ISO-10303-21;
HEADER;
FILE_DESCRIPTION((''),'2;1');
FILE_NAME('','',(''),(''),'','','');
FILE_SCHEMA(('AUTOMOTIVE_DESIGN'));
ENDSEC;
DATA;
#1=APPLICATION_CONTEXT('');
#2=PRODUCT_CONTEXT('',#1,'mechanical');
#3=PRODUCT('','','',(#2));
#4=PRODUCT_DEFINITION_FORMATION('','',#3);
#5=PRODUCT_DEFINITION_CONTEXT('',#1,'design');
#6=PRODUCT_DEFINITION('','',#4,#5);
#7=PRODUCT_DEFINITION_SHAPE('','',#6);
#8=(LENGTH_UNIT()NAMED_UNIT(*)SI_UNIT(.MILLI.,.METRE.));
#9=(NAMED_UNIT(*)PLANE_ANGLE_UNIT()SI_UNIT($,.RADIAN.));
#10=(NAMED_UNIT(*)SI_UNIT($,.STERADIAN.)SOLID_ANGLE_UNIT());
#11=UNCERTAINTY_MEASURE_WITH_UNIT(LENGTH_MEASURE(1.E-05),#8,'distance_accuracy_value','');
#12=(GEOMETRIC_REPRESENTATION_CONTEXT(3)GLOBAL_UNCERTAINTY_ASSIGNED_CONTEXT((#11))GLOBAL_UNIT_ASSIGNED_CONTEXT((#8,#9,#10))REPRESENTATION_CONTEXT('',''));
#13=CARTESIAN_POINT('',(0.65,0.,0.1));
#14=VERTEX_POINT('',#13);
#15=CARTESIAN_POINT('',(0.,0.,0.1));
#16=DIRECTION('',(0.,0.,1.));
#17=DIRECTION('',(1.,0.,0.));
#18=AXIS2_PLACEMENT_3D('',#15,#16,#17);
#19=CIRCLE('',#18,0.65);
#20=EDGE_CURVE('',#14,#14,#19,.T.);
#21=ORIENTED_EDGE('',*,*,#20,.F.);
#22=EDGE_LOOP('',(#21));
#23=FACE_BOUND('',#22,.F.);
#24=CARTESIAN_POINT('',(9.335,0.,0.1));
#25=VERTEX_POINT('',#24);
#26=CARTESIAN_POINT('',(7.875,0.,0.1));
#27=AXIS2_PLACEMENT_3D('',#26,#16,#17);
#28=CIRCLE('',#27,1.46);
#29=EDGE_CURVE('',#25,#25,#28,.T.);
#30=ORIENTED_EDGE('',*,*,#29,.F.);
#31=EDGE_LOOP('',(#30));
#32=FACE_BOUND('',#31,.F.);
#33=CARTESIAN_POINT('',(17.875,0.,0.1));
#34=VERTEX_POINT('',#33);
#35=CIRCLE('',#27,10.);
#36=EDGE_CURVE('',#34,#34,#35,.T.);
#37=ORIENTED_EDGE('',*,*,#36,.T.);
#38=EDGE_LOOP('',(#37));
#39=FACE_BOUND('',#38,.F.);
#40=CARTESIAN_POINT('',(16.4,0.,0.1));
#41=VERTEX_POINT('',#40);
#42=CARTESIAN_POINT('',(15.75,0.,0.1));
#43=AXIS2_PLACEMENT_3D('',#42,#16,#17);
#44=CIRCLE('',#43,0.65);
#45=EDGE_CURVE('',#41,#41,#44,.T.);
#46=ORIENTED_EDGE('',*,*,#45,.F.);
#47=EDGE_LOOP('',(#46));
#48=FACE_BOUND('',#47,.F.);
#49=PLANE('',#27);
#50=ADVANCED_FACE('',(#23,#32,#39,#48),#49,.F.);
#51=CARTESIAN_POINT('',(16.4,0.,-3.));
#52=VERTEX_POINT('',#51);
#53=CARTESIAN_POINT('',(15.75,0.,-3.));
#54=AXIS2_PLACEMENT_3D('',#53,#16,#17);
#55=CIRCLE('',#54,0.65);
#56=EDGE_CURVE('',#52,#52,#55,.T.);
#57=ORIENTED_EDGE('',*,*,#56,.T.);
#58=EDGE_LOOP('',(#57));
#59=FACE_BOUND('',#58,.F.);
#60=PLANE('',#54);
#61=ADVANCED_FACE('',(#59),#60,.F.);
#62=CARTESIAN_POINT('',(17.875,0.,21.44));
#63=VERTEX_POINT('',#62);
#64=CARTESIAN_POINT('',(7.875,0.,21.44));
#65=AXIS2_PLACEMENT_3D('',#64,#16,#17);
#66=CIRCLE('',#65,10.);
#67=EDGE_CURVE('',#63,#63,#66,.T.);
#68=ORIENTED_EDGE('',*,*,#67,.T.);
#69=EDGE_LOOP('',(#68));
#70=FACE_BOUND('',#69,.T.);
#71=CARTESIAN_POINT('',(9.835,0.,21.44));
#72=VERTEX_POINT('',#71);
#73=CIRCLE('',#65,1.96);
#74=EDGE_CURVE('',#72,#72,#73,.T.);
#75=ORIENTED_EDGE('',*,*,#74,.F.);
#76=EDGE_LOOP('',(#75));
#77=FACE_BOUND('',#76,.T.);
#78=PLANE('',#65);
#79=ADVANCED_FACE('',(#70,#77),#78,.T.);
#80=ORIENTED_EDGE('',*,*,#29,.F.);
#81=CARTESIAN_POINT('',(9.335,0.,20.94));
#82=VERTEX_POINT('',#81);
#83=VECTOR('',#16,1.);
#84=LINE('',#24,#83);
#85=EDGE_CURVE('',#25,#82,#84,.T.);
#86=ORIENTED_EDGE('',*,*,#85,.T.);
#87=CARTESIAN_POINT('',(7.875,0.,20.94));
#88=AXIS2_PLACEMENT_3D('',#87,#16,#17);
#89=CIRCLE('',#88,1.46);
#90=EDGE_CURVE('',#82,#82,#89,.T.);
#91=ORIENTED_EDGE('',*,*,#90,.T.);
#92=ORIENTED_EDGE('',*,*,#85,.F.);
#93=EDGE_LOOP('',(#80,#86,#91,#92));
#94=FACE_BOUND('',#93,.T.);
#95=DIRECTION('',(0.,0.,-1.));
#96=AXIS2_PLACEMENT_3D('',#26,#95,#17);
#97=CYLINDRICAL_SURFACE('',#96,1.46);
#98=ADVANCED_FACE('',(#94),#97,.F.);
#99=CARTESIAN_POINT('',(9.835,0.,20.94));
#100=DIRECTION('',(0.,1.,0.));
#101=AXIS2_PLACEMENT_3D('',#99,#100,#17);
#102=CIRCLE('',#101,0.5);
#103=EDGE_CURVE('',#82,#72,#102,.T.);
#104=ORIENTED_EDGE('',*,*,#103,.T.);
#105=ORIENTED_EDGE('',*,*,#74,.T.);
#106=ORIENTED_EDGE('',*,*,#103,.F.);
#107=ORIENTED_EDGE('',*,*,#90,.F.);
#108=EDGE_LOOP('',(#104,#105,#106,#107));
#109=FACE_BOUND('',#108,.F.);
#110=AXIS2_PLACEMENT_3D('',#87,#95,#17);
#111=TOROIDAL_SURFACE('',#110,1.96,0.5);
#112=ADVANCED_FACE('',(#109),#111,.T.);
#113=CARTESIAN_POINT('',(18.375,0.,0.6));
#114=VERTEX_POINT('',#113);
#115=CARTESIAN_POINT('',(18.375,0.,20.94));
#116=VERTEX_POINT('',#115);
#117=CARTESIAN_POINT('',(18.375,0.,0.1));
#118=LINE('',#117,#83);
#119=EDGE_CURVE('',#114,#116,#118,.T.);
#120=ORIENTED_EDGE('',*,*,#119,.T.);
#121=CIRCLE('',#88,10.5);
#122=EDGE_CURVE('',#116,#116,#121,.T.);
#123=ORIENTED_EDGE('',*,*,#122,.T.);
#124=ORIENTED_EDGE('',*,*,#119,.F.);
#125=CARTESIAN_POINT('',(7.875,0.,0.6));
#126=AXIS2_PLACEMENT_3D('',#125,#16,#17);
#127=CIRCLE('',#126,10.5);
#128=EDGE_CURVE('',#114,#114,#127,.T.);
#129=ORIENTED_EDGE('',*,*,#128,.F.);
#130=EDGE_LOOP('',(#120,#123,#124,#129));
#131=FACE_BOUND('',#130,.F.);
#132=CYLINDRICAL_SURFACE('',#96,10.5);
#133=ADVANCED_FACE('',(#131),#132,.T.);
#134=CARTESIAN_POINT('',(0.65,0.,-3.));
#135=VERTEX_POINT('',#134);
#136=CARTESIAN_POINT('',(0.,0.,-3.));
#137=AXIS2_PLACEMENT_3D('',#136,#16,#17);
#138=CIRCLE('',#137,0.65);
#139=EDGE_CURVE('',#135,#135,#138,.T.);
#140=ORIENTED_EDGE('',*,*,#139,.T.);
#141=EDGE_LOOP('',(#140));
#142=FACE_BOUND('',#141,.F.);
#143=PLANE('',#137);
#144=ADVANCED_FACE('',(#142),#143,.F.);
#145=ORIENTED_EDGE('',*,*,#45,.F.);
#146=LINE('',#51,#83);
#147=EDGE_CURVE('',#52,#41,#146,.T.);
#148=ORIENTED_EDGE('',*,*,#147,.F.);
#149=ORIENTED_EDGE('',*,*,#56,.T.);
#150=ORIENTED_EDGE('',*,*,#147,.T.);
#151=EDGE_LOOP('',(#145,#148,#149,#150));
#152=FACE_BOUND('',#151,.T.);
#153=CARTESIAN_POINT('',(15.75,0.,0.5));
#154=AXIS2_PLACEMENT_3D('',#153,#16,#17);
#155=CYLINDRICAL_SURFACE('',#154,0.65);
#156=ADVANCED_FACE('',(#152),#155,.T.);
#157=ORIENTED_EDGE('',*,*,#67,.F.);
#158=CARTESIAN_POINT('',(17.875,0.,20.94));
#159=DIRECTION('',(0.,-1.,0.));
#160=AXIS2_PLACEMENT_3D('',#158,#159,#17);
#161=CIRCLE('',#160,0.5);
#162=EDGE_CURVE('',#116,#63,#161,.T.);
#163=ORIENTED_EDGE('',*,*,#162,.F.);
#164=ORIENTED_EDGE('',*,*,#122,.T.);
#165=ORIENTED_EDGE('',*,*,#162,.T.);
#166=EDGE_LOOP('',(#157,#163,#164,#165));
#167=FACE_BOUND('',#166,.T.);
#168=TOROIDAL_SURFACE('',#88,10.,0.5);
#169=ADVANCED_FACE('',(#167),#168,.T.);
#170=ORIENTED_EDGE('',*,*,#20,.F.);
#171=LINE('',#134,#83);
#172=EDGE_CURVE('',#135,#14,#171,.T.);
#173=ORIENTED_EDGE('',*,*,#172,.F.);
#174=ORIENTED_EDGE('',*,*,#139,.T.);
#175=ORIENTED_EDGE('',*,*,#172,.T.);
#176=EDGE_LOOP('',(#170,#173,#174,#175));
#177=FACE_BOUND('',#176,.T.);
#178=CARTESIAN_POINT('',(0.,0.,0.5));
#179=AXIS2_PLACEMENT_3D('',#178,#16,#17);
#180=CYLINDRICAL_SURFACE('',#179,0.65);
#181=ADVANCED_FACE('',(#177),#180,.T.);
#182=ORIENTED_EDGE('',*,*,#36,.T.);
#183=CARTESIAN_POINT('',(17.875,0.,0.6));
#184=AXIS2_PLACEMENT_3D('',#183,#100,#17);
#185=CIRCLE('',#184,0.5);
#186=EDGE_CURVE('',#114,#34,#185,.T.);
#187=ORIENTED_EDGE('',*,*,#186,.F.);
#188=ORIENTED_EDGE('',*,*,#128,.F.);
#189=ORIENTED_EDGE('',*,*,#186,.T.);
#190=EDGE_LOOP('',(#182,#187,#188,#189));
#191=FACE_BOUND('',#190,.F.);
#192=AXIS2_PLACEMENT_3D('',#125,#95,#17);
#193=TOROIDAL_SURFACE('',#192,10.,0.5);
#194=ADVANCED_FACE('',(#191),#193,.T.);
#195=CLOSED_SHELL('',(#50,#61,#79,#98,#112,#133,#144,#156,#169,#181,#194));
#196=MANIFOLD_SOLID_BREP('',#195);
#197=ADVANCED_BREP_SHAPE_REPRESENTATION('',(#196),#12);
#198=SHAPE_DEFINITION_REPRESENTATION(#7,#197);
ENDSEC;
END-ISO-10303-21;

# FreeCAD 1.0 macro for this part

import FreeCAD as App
import Part
import Sketcher


def edges_at(feature, points):
    """Names of the edges that pass closest to the given points."""
    edges = feature.Shape.Edges
    near = lambda p: min(range(len(edges)), key=lambda i: edges[i].distToShape(Part.Vertex(*p))[0])
    return sorted({f"Edge{near(p) + 1}" for p in points})

doc = App.newDocument("Part")
body = doc.addObject("PartDesign::Body", "Body")
body.AllowCompound = True

# Sketch on XY plane
sketch1 = doc.addObject("Sketcher::SketchObject", "Sketch")
body.addObject(sketch1)
sketch1.AttachmentSupport = (doc.XY_Plane, [""])
sketch1.MapMode = "FlatFace"
sketch1.AttachmentOffset = App.Placement(App.Vector(0, 0, 0.5), App.Rotation())
sketch1.addGeometry(Part.Circle(App.Vector(0, 0, 0), App.Vector(0, 0, 1), 0.7), False)
sketch1.addGeometry(Part.Circle(App.Vector(15.8, 0, 0), App.Vector(0, 0, 1), 0.7), False)
sketch1.addConstraint(Sketcher.Constraint("Coincident", 0, 3, -1, 1))
sketch1.addConstraint(Sketcher.Constraint("Equal", 0, 1))
sketch1.addConstraint(Sketcher.Constraint("PointOnObject", 1, 3, -1))
sketch1.addConstraint(Sketcher.Constraint("Diameter", 0, 1.3))
sketch1.addConstraint(Sketcher.Constraint("DistanceX", -1, 1, 1, 3, 15.75))
pad1 = doc.addObject("PartDesign::Pad", "Pad")
body.addObject(pad1)
pad1.Profile = sketch1
pad1.Type = "TwoLengths"
pad1.Length = 10.67
pad1.Length2 = 3.5
body2 = doc.addObject("PartDesign::Body", "Body001")

# Sketch on XY plane
sketch2 = doc.addObject("Sketcher::SketchObject", "Sketch001")
body2.addObject(sketch2)
sketch2.AttachmentSupport = (doc.getObject("XY_Plane001"), [""])
sketch2.MapMode = "FlatFace"
sketch2.AttachmentOffset = App.Placement(App.Vector(0, 0, 0.1), App.Rotation())
sketch2.addGeometry(Part.Circle(App.Vector(7.9, 0, 0), App.Vector(0, 0, 1), 10.5), False)
sketch2.addGeometry(Part.Circle(App.Vector(7.9, 0, 0), App.Vector(0, 0, 1), 1.5), False)
sketch2.addConstraint(Sketcher.Constraint("Coincident", 1, 3, 0, 3))
sketch2.addConstraint(Sketcher.Constraint("PointOnObject", 0, 3, -1))
sketch2.addConstraint(Sketcher.Constraint("Diameter", 0, 21.0))
sketch2.addConstraint(Sketcher.Constraint("Diameter", 1, 2.92))
sketch2.addConstraint(Sketcher.Constraint("DistanceX", -1, 1, 0, 3, 7.875))
pad2 = doc.addObject("PartDesign::Pad", "Pad001")
body2.addObject(pad2)
pad2.Profile = sketch2
pad2.Length = 21.34
doc.recompute()

fillet = doc.addObject("PartDesign::Fillet", "Fillet")
body2.addObject(fillet)
fillet.Base = (pad2, edges_at(pad2, [(6.415, 0, 21.44), (-2.625, 0, 21.44), (-2.625, 0, 0.1)]))
fillet.Radius = 0.5
doc.recompute()

boolean = doc.addObject("PartDesign::Boolean", "Boolean")
body2.addObject(boolean)
boolean.Type = "Fuse"
boolean.addObjects([body])

doc.recompute()
